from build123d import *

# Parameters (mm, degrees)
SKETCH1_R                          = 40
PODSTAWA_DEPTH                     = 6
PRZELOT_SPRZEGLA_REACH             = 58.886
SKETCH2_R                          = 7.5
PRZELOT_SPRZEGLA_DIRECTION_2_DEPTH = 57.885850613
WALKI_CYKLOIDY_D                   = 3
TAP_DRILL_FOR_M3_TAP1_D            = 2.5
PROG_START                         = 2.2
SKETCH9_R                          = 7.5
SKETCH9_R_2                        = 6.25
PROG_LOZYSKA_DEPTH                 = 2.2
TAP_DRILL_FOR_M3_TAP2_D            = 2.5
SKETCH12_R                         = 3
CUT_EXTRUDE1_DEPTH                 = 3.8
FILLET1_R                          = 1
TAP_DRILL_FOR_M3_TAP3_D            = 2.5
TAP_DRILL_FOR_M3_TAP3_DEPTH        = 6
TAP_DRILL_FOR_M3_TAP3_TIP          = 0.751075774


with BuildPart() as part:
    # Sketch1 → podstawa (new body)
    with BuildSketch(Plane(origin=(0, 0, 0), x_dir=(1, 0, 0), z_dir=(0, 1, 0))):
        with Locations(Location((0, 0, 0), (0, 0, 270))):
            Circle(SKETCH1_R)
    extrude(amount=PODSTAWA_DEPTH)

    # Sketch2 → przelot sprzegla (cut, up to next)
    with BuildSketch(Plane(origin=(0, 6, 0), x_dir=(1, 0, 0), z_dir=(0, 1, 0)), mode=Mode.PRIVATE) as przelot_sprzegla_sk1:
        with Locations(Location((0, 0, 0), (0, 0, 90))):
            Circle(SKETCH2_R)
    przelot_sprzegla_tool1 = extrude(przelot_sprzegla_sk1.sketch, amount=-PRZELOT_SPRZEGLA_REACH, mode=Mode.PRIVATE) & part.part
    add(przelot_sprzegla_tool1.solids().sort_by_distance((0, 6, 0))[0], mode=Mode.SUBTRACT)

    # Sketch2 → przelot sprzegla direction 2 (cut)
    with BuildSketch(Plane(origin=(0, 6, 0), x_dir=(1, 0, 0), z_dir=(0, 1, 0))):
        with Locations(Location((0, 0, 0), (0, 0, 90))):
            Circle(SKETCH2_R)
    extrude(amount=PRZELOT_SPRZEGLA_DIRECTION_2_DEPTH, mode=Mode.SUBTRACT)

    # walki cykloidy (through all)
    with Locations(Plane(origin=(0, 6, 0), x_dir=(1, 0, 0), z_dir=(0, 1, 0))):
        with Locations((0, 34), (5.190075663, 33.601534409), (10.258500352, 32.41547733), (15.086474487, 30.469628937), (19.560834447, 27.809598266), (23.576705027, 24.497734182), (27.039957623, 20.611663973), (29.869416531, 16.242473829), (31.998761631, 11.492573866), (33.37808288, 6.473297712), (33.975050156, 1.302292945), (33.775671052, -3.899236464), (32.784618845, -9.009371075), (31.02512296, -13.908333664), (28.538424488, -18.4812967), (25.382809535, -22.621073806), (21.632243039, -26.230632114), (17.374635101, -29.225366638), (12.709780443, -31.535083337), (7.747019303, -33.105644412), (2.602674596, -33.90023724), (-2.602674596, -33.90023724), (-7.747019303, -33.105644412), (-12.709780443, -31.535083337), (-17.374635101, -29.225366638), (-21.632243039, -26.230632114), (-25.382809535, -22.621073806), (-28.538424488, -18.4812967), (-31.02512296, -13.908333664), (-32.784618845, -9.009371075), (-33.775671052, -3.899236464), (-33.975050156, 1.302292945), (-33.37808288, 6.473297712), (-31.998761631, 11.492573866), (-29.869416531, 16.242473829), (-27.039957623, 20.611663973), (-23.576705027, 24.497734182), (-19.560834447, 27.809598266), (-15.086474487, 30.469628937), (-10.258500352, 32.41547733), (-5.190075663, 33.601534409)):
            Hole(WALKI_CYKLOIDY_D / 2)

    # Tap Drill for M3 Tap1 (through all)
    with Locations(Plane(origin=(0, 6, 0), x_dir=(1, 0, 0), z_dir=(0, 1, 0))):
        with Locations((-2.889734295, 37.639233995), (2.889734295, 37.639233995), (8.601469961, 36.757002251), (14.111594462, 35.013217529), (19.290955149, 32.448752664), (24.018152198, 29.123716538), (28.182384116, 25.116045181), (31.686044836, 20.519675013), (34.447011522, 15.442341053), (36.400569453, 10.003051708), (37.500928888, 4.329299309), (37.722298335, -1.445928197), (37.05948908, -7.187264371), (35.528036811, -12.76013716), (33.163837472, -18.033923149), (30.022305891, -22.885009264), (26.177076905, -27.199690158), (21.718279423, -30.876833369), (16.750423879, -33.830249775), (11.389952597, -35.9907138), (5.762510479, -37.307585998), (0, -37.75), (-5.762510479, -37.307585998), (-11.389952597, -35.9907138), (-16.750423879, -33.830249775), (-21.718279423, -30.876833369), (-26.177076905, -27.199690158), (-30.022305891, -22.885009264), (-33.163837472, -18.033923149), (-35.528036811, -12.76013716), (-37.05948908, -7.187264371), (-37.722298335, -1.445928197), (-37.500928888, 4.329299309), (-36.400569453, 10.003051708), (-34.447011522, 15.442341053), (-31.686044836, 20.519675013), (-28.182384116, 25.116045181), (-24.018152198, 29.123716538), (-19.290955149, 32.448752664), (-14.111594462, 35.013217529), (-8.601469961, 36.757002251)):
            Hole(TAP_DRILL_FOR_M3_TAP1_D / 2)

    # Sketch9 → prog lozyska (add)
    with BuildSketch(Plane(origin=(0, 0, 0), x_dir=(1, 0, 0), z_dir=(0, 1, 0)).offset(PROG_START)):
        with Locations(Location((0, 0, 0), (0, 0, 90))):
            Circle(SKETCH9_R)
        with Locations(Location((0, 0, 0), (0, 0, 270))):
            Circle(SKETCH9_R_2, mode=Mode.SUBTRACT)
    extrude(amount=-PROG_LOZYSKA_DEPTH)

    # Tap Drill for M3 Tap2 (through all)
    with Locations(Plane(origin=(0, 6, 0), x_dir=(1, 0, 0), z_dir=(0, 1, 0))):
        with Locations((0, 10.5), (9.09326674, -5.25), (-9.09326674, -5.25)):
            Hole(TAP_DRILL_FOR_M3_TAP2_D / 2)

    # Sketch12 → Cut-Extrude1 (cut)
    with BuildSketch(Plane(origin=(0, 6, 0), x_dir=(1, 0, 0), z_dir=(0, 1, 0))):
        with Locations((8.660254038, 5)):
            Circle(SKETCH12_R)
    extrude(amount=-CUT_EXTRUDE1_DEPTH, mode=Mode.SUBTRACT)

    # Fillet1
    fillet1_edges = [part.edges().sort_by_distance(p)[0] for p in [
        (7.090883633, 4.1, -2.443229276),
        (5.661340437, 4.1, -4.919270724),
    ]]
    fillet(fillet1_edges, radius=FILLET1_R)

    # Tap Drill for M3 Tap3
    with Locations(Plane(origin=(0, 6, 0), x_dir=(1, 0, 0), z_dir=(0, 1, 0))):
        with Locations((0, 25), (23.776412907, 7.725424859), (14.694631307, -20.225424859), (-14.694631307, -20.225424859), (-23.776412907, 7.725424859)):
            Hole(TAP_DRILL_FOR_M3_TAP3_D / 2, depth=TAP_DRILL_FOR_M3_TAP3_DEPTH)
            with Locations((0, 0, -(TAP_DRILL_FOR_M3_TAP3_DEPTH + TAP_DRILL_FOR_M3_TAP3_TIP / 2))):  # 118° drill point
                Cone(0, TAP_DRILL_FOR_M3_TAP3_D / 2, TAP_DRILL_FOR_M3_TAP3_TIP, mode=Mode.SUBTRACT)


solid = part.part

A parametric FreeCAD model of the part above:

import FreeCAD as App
import Part
import Sketcher
from FreeCAD import Vector


def edges_at(feature, points):
    """Names of the edges that pass closest to the given points."""
    edges = feature.Shape.Edges
    near = lambda p: min(range(len(edges)), key=lambda i: edges[i].distToShape(Part.Vertex(*p))[0])
    return sorted({f"Edge{near(p) + 1}" for p in points})

doc = App.newDocument("Part")
body = doc.addObject("PartDesign::Body", "Body")

# Sketch on XZ plane
sketch1 = body.newObject("Sketcher::SketchObject", "Sketch")
sketch1.AttachmentSupport = (doc.getObject("XZ_Plane"), [""])
sketch1.MapMode = "FlatFace"
sketch1.addGeometry(Part.Circle(Vector(0, 0, 0), Vector(0, 0, 1), 40), False)
sketch1.addConstraint(Sketcher.Constraint("Coincident", 0, 3, -1, 1))
sketch1.addConstraint(Sketcher.Constraint("Diameter", 0, 80.0))
pad1 = body.newObject("PartDesign::Pad", "Pad")
pad1.Profile = sketch1
pad1.Length = 6
pad1.Reversed = True

# Sketch on XZ plane
sketch2 = body.newObject("Sketcher::SketchObject", "Sketch001")
sketch2.AttachmentSupport = (doc.getObject("XZ_Plane"), [""])
sketch2.MapMode = "FlatFace"
sketch2.AttachmentOffset = App.Placement(Vector(0, 0, -6), App.Rotation())
sketch2.addGeometry(Part.Circle(Vector(0, 0, 0), Vector(0, 0, 1), 7.5), False)
sketch2.addConstraint(Sketcher.Constraint("Coincident", 0, 3, -1, 1))
sketch2.addConstraint(Sketcher.Constraint("Diameter", 0, 15.0))
pocket1 = body.newObject("PartDesign::Pocket", "Pocket")
pocket1.Profile = sketch2
pocket1.Type = "UpToFirst"
pocket1.Reversed = True

# Sketch on XZ plane
sketch3 = body.newObject("Sketcher::SketchObject", "Sketch002")
sketch3.AttachmentSupport = (doc.getObject("XZ_Plane"), [""])
sketch3.MapMode = "FlatFace"
sketch3.AttachmentOffset = App.Placement(Vector(0, 0, -6), App.Rotation())
sketch3.addGeometry(Part.Circle(Vector(0, 0, 0), Vector(0, 0, 1), 7.5), False)
sketch3.addConstraint(Sketcher.Constraint("Coincident", 0, 3, -1, 1))
sketch3.addConstraint(Sketcher.Constraint("Diameter", 0, 15.0))
pocket2 = body.newObject("PartDesign::Pocket", "Pocket001")
pocket2.Profile = sketch3
pocket2.Length = 57.885851

# Sketch on XZ plane
sketch4 = body.newObject("Sketcher::SketchObject", "Sketch003")
sketch4.AttachmentSupport = (doc.getObject("XZ_Plane"), [""])
sketch4.MapMode = "FlatFace"
sketch4.AttachmentOffset = App.Placement(Vector(0, 0, -6), App.Rotation())
sketch4.addGeometry(Part.Circle(Vector(0, -34, 0), Vector(0, 0, 1), 1.5), False)
sketch4.addGeometry(Part.Circle(Vector(5.190076, -33.601534, 0), Vector(0, 0, 1), 1.5), False)
sketch4.addGeometry(Part.Circle(Vector(10.2585, -32.415477, 0), Vector(0, 0, 1), 1.5), False)
sketch4.addGeometry(Part.Circle(Vector(15.086474, -30.469629, 0), Vector(0, 0, 1), 1.5), False)
sketch4.addGeometry(Part.Circle(Vector(19.560834, -27.809598, 0), Vector(0, 0, 1), 1.5), False)
sketch4.addGeometry(Part.Circle(Vector(23.576705, -24.497734, 0), Vector(0, 0, 1), 1.5), False)
sketch4.addGeometry(Part.Circle(Vector(27.039958, -20.611664, 0), Vector(0, 0, 1), 1.5), False)
sketch4.addGeometry(Part.Circle(Vector(29.869417, -16.242474, 0), Vector(0, 0, 1), 1.5), False)
sketch4.addGeometry(Part.Circle(Vector(31.998762, -11.492574, 0), Vector(0, 0, 1), 1.5), False)
sketch4.addGeometry(Part.Circle(Vector(33.378083, -6.473298, 0), Vector(0, 0, 1), 1.5), False)
sketch4.addGeometry(Part.Circle(Vector(33.97505, -1.302293, 0), Vector(0, 0, 1), 1.5), False)
sketch4.addGeometry(Part.Circle(Vector(33.775671, 3.899236, 0), Vector(0, 0, 1), 1.5), False)
sketch4.addGeometry(Part.Circle(Vector(32.784619, 9.009371, 0), Vector(0, 0, 1), 1.5), False)
sketch4.addGeometry(Part.Circle(Vector(31.025123, 13.908334, 0), Vector(0, 0, 1), 1.5), False)
sketch4.addGeometry(Part.Circle(Vector(28.538424, 18.481297, 0), Vector(0, 0, 1), 1.5), False)
sketch4.addGeometry(Part.Circle(Vector(25.38281, 22.621074, 0), Vector(0, 0, 1), 1.5), False)
sketch4.addGeometry(Part.Circle(Vector(21.632243, 26.230632, 0), Vector(0, 0, 1), 1.5), False)
sketch4.addGeometry(Part.Circle(Vector(17.374635, 29.225367, 0), Vector(0, 0, 1), 1.5), False)
sketch4.addGeometry(Part.Circle(Vector(12.70978, 31.535083, 0), Vector(0, 0, 1), 1.5), False)
sketch4.addGeometry(Part.Circle(Vector(7.747019, 33.105644, 0), Vector(0, 0, 1), 1.5), False)
sketch4.addGeometry(Part.Circle(Vector(2.602675, 33.900237, 0), Vector(0, 0, 1), 1.5), False)
sketch4.addGeometry(Part.Circle(Vector(-2.602675, 33.900237, 0), Vector(0, 0, 1), 1.5), False)
sketch4.addGeometry(Part.Circle(Vector(-7.747019, 33.105644, 0), Vector(0, 0, 1), 1.5), False)
sketch4.addGeometry(Part.Circle(Vector(-12.70978, 31.535083, 0), Vector(0, 0, 1), 1.5), False)
sketch4.addGeometry(Part.Circle(Vector(-17.374635, 29.225367, 0), Vector(0, 0, 1), 1.5), False)
sketch4.addGeometry(Part.Circle(Vector(-21.632243, 26.230632, 0), Vector(0, 0, 1), 1.5), False)
sketch4.addGeometry(Part.Circle(Vector(-25.38281, 22.621074, 0), Vector(0, 0, 1), 1.5), False)
sketch4.addGeometry(Part.Circle(Vector(-28.538424, 18.481297, 0), Vector(0, 0, 1), 1.5), False)
sketch4.addGeometry(Part.Circle(Vector(-31.025123, 13.908334, 0), Vector(0, 0, 1), 1.5), False)
sketch4.addGeometry(Part.Circle(Vector(-32.784619, 9.009371, 0), Vector(0, 0, 1), 1.5), False)
sketch4.addGeometry(Part.Circle(Vector(-33.775671, 3.899236, 0), Vector(0, 0, 1), 1.5), False)
sketch4.addGeometry(Part.Circle(Vector(-33.97505, -1.302293, 0), Vector(0, 0, 1), 1.5), False)
sketch4.addGeometry(Part.Circle(Vector(-33.378083, -6.473298, 0), Vector(0, 0, 1), 1.5), False)
sketch4.addGeometry(Part.Circle(Vector(-31.998762, -11.492574, 0), Vector(0, 0, 1), 1.5), False)
sketch4.addGeometry(Part.Circle(Vector(-29.869417, -16.242474, 0), Vector(0, 0, 1), 1.5), False)
sketch4.addGeometry(Part.Circle(Vector(-27.039958, -20.611664, 0), Vector(0, 0, 1), 1.5), False)
sketch4.addGeometry(Part.Circle(Vector(-23.576705, -24.497734, 0), Vector(0, 0, 1), 1.5), False)
sketch4.addGeometry(Part.Circle(Vector(-19.560834, -27.809598, 0), Vector(0, 0, 1), 1.5), False)
sketch4.addGeometry(Part.Circle(Vector(-15.086474, -30.469629, 0), Vector(0, 0, 1), 1.5), False)
sketch4.addGeometry(Part.Circle(Vector(-10.2585, -32.415477, 0), Vector(0, 0, 1), 1.5), False)
sketch4.addGeometry(Part.Circle(Vector(-5.190076, -33.601534, 0), Vector(0, 0, 1), 1.5), False)
sketch4.addConstraint(Sketcher.Constraint("Equal", 0, 1))
sketch4.addConstraint(Sketcher.Constraint("Equal", 1, 2))
sketch4.addConstraint(Sketcher.Constraint("Equal", 2, 3))
sketch4.addConstraint(Sketcher.Constraint("Equal", 3, 4))
sketch4.addConstraint(Sketcher.Constraint("Equal", 4, 5))
sketch4.addConstraint(Sketcher.Constraint("Equal", 5, 6))
sketch4.addConstraint(Sketcher.Constraint("Equal", 6, 7))
sketch4.addConstraint(Sketcher.Constraint("Equal", 7, 8))
sketch4.addConstraint(Sketcher.Constraint("Equal", 8, 9))
sketch4.addConstraint(Sketcher.Constraint("Equal", 9, 10))
sketch4.addConstraint(Sketcher.Constraint("Equal", 10, 11))
sketch4.addConstraint(Sketcher.Constraint("Equal", 11, 12))
sketch4.addConstraint(Sketcher.Constraint("Equal", 12, 13))
sketch4.addConstraint(Sketcher.Constraint("Equal", 13, 14))
sketch4.addConstraint(Sketcher.Constraint("Equal", 14, 15))
sketch4.addConstraint(Sketcher.Constraint("Equal", 15, 16))
sketch4.addConstraint(Sketcher.Constraint("Equal", 16, 17))
sketch4.addConstraint(Sketcher.Constraint("Equal", 17, 18))
sketch4.addConstraint(Sketcher.Constraint("Equal", 18, 19))
sketch4.addConstraint(Sketcher.Constraint("Equal", 19, 20))
sketch4.addConstraint(Sketcher.Constraint("Equal", 20, 21))
sketch4.addConstraint(Sketcher.Constraint("Equal", 21, 22))
sketch4.addConstraint(Sketcher.Constraint("Equal", 22, 23))
sketch4.addConstraint(Sketcher.Constraint("Equal", 23, 24))
sketch4.addConstraint(Sketcher.Constraint("Equal", 24, 25))
sketch4.addConstraint(Sketcher.Constraint("Equal", 25, 26))
sketch4.addConstraint(Sketcher.Constraint("Equal", 26, 27))
sketch4.addConstraint(Sketcher.Constraint("Equal", 27, 28))
sketch4.addConstraint(Sketcher.Constraint("Equal", 28, 29))
sketch4.addConstraint(Sketcher.Constraint("Equal", 29, 30))
sketch4.addConstraint(Sketcher.Constraint("Equal", 30, 31))
sketch4.addConstraint(Sketcher.Constraint("Equal", 31, 32))
sketch4.addConstraint(Sketcher.Constraint("Equal", 32, 33))
sketch4.addConstraint(Sketcher.Constraint("Equal", 33, 34))
sketch4.addConstraint(Sketcher.Constraint("Equal", 34, 35))
sketch4.addConstraint(Sketcher.Constraint("Equal", 35, 36))
sketch4.addConstraint(Sketcher.Constraint("Equal", 36, 37))
sketch4.addConstraint(Sketcher.Constraint("Equal", 37, 38))
sketch4.addConstraint(Sketcher.Constraint("Equal", 38, 39))
sketch4.addConstraint(Sketcher.Constraint("Equal", 39, 40))
sketch4.addConstraint(Sketcher.Constraint("Symmetric", 20, 3, 21, 3, -2))
sketch4.addConstraint(Sketcher.Constraint("Symmetric", 19, 3, 22, 3, -2))
sketch4.addConstraint(Sketcher.Constraint("Symmetric", 18, 3, 23, 3, -2))
sketch4.addConstraint(Sketcher.Constraint("Symmetric", 17, 3, 24, 3, -2))
sketch4.addConstraint(Sketcher.Constraint("Symmetric", 16, 3, 25, 3, -2))
sketch4.addConstraint(Sketcher.Constraint("Symmetric", 15, 3, 26, 3, -2))
sketch4.addConstraint(Sketcher.Constraint("Symmetric", 14, 3, 27, 3, -2))
sketch4.addConstraint(Sketcher.Constraint("Symmetric", 13, 3, 28, 3, -2))
sketch4.addConstraint(Sketcher.Constraint("Symmetric", 12, 3, 29, 3, -2))
sketch4.addConstraint(Sketcher.Constraint("Symmetric", 11, 3, 30, 3, -2))
sketch4.addConstraint(Sketcher.Constraint("Symmetric", 10, 3, 31, 3, -2))
sketch4.addConstraint(Sketcher.Constraint("Symmetric", 9, 3, 32, 3, -2))
sketch4.addConstraint(Sketcher.Constraint("Symmetric", 8, 3, 33, 3, -2))
sketch4.addConstraint(Sketcher.Constraint("Symmetric", 7, 3, 34, 3, -2))
sketch4.addConstraint(Sketcher.Constraint("Symmetric", 6, 3, 35, 3, -2))
sketch4.addConstraint(Sketcher.Constraint("Symmetric", 5, 3, 36, 3, -2))
sketch4.addConstraint(Sketcher.Constraint("Symmetric", 4, 3, 37, 3, -2))
sketch4.addConstraint(Sketcher.Constraint("Symmetric", 3, 3, 38, 3, -2))
sketch4.addConstraint(Sketcher.Constraint("Symmetric", 2, 3, 39, 3, -2))
sketch4.addConstraint(Sketcher.Constraint("Symmetric", 1, 3, 40, 3, -2))
sketch4.addConstraint(Sketcher.Constraint("PointOnObject", 0, 3, -2))
sketch4.addConstraint(Sketcher.Constraint("Diameter", 0, 3.0))
sketch4.addConstraint(Sketcher.Constraint("DistanceY", 0, 3, -1, 1, 34.0))
sketch4.addConstraint(Sketcher.Constraint("DistanceX", -1, 1, 2, 3, 10.2585))
sketch4.addConstraint(Sketcher.Constraint("DistanceY", 4, 3, -1, 1, 27.809598))
sketch4.addConstraint(Sketcher.Constraint("DistanceX", 1, 3, 3, 3, 9.896399))
sketch4.addConstraint(Sketcher.Constraint("DistanceY", 1, 3, 5, 3, 9.1038))
sketch4.addConstraint(Sketcher.Constraint("DistanceY", 7, 3, 8, 3, 4.7499))
sketch4.addConstraint(Sketcher.Constraint("DistanceY", 4, 3, 9, 3, 21.336301))
sketch4.addConstraint(Sketcher.Constraint("DistanceY", 6, 3, 11, 3, 24.5109))
sketch4.addConstraint(Sketcher.Constraint("DistanceX", 14, 3, 13, 3, 2.486698))
sketch4.addConstraint(Sketcher.Constraint("DistanceY", 13, 3, 16, 3, 12.322298))
sketch4.addConstraint(Sketcher.Constraint("DistanceX", 22, 3, 18, 3, 20.4568))
sketch4.addConstraint(Sketcher.Constraint("DistanceY", 3, 3, -1, 1, 30.469629))
sketch4.addConstraint(Sketcher.Constraint("DistanceX", -1, 1, 8, 3, 31.998762))
sketch4.addConstraint(Sketcher.Constraint("DistanceX", -1, 1, 10, 3, 33.97505))
sketch4.addConstraint(Sketcher.Constraint("DistanceX", -1, 1, 11, 3, 33.775671))
sketch4.addConstraint(Sketcher.Constraint("DistanceX", -1, 1, 12, 3, 32.784619))
sketch4.addConstraint(Sketcher.Constraint("DistanceY", -1, 1, 12, 3, 9.009371))
sketch4.addConstraint(Sketcher.Constraint("DistanceX", -1, 1, 15, 3, 25.38281))
sketch4.addConstraint(Sketcher.Constraint("DistanceX", -1, 1, 18, 3, 12.70978))
sketch4.addConstraint(Sketcher.Constraint("DistanceY", 2, 3, 3, 3, 1.945848))
sketch4.addConstraint(Sketcher.Constraint("DistanceX", 3, 3, 4, 3, 4.47436))
sketch4.addConstraint(Sketcher.Constraint("DistanceX", 4, 3, 5, 3, 4.015871))
sketch4.addConstraint(Sketcher.Constraint("DistanceY", 5, 3, 6, 3, 3.88607))
sketch4.addConstraint(Sketcher.Constraint("DistanceX", 1, 3, 6, 3, 21.849882))
sketch4.addConstraint(Sketcher.Constraint("DistanceX", 6, 3, 7, 3, 2.829459))
sketch4.addConstraint(Sketcher.Constraint("DistanceY", 6, 3, 7, 3, 4.36919))
sketch4.addConstraint(Sketcher.Constraint("DistanceX", 8, 3, 9, 3, 1.379321))
sketch4.addConstraint(Sketcher.Constraint("DistanceX", 4, 3, 9, 3, 13.817248))
sketch4.addConstraint(Sketcher.Constraint("DistanceY", 8, 3, 10, 3, 10.190281))
sketch4.addConstraint(Sketcher.Constraint("DistanceX", 13, 3, 11, 3, 2.750548))
sketch4.addConstraint(Sketcher.Constraint("DistanceY", 9, 3, 13, 3, 20.381631))
sketch4.addConstraint(Sketcher.Constraint("DistanceY", 11, 3, 14, 3, 14.58206))
sketch4.addConstraint(Sketcher.Constraint("DistanceY", 13, 3, 15, 3, 8.71274))
sketch4.addConstraint(Sketcher.Constraint("DistanceX", 16, 3, 14, 3, 6.906181))
sketch4.addConstraint(Sketcher.Constraint("DistanceX", 17, 3, 14, 3, 11.163789))
sketch4.addConstraint(Sketcher.Constraint("DistanceY", 14, 3, 17, 3, 10.74407))
sketch4.addConstraint(Sketcher.Constraint("DistanceY", 16, 3, 18, 3, 5.304451))
sketch4.addConstraint(Sketcher.Constraint("DistanceY", 18, 3, 19, 3, 1.570561))
sketch4.addConstraint(Sketcher.Constraint("DistanceX", 20, 3, 17, 3, 14.771961))
sketch4.addConstraint(Sketcher.Constraint("DistanceY", 17, 3, 20, 3, 4.674871))
sketch4.addConstraint(Sketcher.Constraint("DistanceY", 1, 3, -1, 1, 33.601534))
doc.recompute()
hole = body.newObject("PartDesign::Hole", "Hole")
hole.Profile = sketch4
hole.ThreadType = "None"
hole.Diameter = 3
hole.DepthType = "ThroughAll"
hole.Reversed = True

# Sketch on XZ plane
sketch5 = body.newObject("Sketcher::SketchObject", "Sketch004")
sketch5.AttachmentSupport = (doc.getObject("XZ_Plane"), [""])
sketch5.MapMode = "FlatFace"
sketch5.AttachmentOffset = App.Placement(Vector(0, 0, -6), App.Rotation())
sketch5.addGeometry(Part.Circle(Vector(-2.889734, -37.639234, 0), Vector(0, 0, 1), 1.25), False)
sketch5.addGeometry(Part.Circle(Vector(2.889734, -37.639234, 0), Vector(0, 0, 1), 1.25), False)
sketch5.addGeometry(Part.Circle(Vector(8.60147, -36.757002, 0), Vector(0, 0, 1), 1.25), False)
sketch5.addGeometry(Part.Circle(Vector(14.111594, -35.013218, 0), Vector(0, 0, 1), 1.25), False)
sketch5.addGeometry(Part.Circle(Vector(19.290955, -32.448753, 0), Vector(0, 0, 1), 1.25), False)
sketch5.addGeometry(Part.Circle(Vector(24.018152, -29.123717, 0), Vector(0, 0, 1), 1.25), False)
sketch5.addGeometry(Part.Circle(Vector(28.182384, -25.116045, 0), Vector(0, 0, 1), 1.25), False)
sketch5.addGeometry(Part.Circle(Vector(31.686045, -20.519675, 0), Vector(0, 0, 1), 1.25), False)
sketch5.addGeometry(Part.Circle(Vector(34.447012, -15.442341, 0), Vector(0, 0, 1), 1.25), False)
sketch5.addGeometry(Part.Circle(Vector(36.400569, -10.003052, 0), Vector(0, 0, 1), 1.25), False)
sketch5.addGeometry(Part.Circle(Vector(37.500929, -4.329299, 0), Vector(0, 0, 1), 1.25), False)
sketch5.addGeometry(Part.Circle(Vector(37.722298, 1.445928, 0), Vector(0, 0, 1), 1.25), False)
sketch5.addGeometry(Part.Circle(Vector(37.059489, 7.187264, 0), Vector(0, 0, 1), 1.25), False)
sketch5.addGeometry(Part.Circle(Vector(35.528037, 12.760137, 0), Vector(0, 0, 1), 1.25), False)
sketch5.addGeometry(Part.Circle(Vector(33.163837, 18.033923, 0), Vector(0, 0, 1), 1.25), False)
sketch5.addGeometry(Part.Circle(Vector(30.022306, 22.885009, 0), Vector(0, 0, 1), 1.25), False)
sketch5.addGeometry(Part.Circle(Vector(26.177077, 27.19969, 0), Vector(0, 0, 1), 1.25), False)
sketch5.addGeometry(Part.Circle(Vector(21.718279, 30.876833, 0), Vector(0, 0, 1), 1.25), False)
sketch5.addGeometry(Part.Circle(Vector(16.750424, 33.83025, 0), Vector(0, 0, 1), 1.25), False)
sketch5.addGeometry(Part.Circle(Vector(11.389953, 35.990714, 0), Vector(0, 0, 1), 1.25), False)
sketch5.addGeometry(Part.Circle(Vector(5.76251, 37.307586, 0), Vector(0, 0, 1), 1.25), False)
sketch5.addGeometry(Part.Circle(Vector(0, 37.75, 0), Vector(0, 0, 1), 1.25), False)
sketch5.addGeometry(Part.Circle(Vector(-5.76251, 37.307586, 0), Vector(0, 0, 1), 1.25), False)
sketch5.addGeometry(Part.Circle(Vector(-11.389953, 35.990714, 0), Vector(0, 0, 1), 1.25), False)
sketch5.addGeometry(Part.Circle(Vector(-16.750424, 33.83025, 0), Vector(0, 0, 1), 1.25), False)
sketch5.addGeometry(Part.Circle(Vector(-21.718279, 30.876833, 0), Vector(0, 0, 1), 1.25), False)
sketch5.addGeometry(Part.Circle(Vector(-26.177077, 27.19969, 0), Vector(0, 0, 1), 1.25), False)
sketch5.addGeometry(Part.Circle(Vector(-30.022306, 22.885009, 0), Vector(0, 0, 1), 1.25), False)
sketch5.addGeometry(Part.Circle(Vector(-33.163837, 18.033923, 0), Vector(0, 0, 1), 1.25), False)
sketch5.addGeometry(Part.Circle(Vector(-35.528037, 12.760137, 0), Vector(0, 0, 1), 1.25), False)
sketch5.addGeometry(Part.Circle(Vector(-37.059489, 7.187264, 0), Vector(0, 0, 1), 1.25), False)
sketch5.addGeometry(Part.Circle(Vector(-37.722298, 1.445928, 0), Vector(0, 0, 1), 1.25), False)
sketch5.addGeometry(Part.Circle(Vector(-37.500929, -4.329299, 0), Vector(0, 0, 1), 1.25), False)
sketch5.addGeometry(Part.Circle(Vector(-36.400569, -10.003052, 0), Vector(0, 0, 1), 1.25), False)
sketch5.addGeometry(Part.Circle(Vector(-34.447012, -15.442341, 0), Vector(0, 0, 1), 1.25), False)
sketch5.addGeometry(Part.Circle(Vector(-31.686045, -20.519675, 0), Vector(0, 0, 1), 1.25), False)
sketch5.addGeometry(Part.Circle(Vector(-28.182384, -25.116045, 0), Vector(0, 0, 1), 1.25), False)
sketch5.addGeometry(Part.Circle(Vector(-24.018152, -29.123717, 0), Vector(0, 0, 1), 1.25), False)
sketch5.addGeometry(Part.Circle(Vector(-19.290955, -32.448753, 0), Vector(0, 0, 1), 1.25), False)
sketch5.addGeometry(Part.Circle(Vector(-14.111594, -35.013218, 0), Vector(0, 0, 1), 1.25), False)
sketch5.addGeometry(Part.Circle(Vector(-8.60147, -36.757002, 0), Vector(0, 0, 1), 1.25), False)
sketch5.addConstraint(Sketcher.Constraint("Equal", 0, 1))
sketch5.addConstraint(Sketcher.Constraint("Equal", 1, 2))
sketch5.addConstraint(Sketcher.Constraint("Equal", 2, 3))
sketch5.addConstraint(Sketcher.Constraint("Equal", 3, 4))
sketch5.addConstraint(Sketcher.Constraint("Equal", 4, 5))
sketch5.addConstraint(Sketcher.Constraint("Equal", 5, 6))
sketch5.addConstraint(Sketcher.Constraint("Equal", 6, 7))
sketch5.addConstraint(Sketcher.Constraint("Equal", 7, 8))
sketch5.addConstraint(Sketcher.Constraint("Equal", 8, 9))
sketch5.addConstraint(Sketcher.Constraint("Equal", 9, 10))
sketch5.addConstraint(Sketcher.Constraint("Equal", 10, 11))
sketch5.addConstraint(Sketcher.Constraint("Equal", 11, 12))
sketch5.addConstraint(Sketcher.Constraint("Equal", 12, 13))
sketch5.addConstraint(Sketcher.Constraint("Equal", 13, 14))
sketch5.addConstraint(Sketcher.Constraint("Equal", 14, 15))
sketch5.addConstraint(Sketcher.Constraint("Equal", 15, 16))
sketch5.addConstraint(Sketcher.Constraint("Equal", 16, 17))
sketch5.addConstraint(Sketcher.Constraint("Equal", 17, 18))
sketch5.addConstraint(Sketcher.Constraint("Equal", 18, 19))
sketch5.addConstraint(Sketcher.Constraint("Equal", 19, 20))
sketch5.addConstraint(Sketcher.Constraint("Equal", 20, 21))
sketch5.addConstraint(Sketcher.Constraint("Equal", 21, 22))
sketch5.addConstraint(Sketcher.Constraint("Equal", 22, 23))
sketch5.addConstraint(Sketcher.Constraint("Equal", 23, 24))
sketch5.addConstraint(Sketcher.Constraint("Equal", 24, 25))
sketch5.addConstraint(Sketcher.Constraint("Equal", 25, 26))
sketch5.addConstraint(Sketcher.Constraint("Equal", 26, 27))
sketch5.addConstraint(Sketcher.Constraint("Equal", 27, 28))
sketch5.addConstraint(Sketcher.Constraint("Equal", 28, 29))
sketch5.addConstraint(Sketcher.Constraint("Equal", 29, 30))
sketch5.addConstraint(Sketcher.Constraint("Equal", 30, 31))
sketch5.addConstraint(Sketcher.Constraint("Equal", 31, 32))
sketch5.addConstraint(Sketcher.Constraint("Equal", 32, 33))
sketch5.addConstraint(Sketcher.Constraint("Equal", 33, 34))
sketch5.addConstraint(Sketcher.Constraint("Equal", 34, 35))
sketch5.addConstraint(Sketcher.Constraint("Equal", 35, 36))
sketch5.addConstraint(Sketcher.Constraint("Equal", 36, 37))
sketch5.addConstraint(Sketcher.Constraint("Equal", 37, 38))
sketch5.addConstraint(Sketcher.Constraint("Equal", 38, 39))
sketch5.addConstraint(Sketcher.Constraint("Equal", 39, 40))
sketch5.addConstraint(Sketcher.Constraint("Symmetric", 0, 3, 1, 3, -2))
sketch5.addConstraint(Sketcher.Constraint("Symmetric", 20, 3, 22, 3, -2))
sketch5.addConstraint(Sketcher.Constraint("Symmetric", 19, 3, 23, 3, -2))
sketch5.addConstraint(Sketcher.Constraint("Symmetric", 18, 3, 24, 3, -2))
sketch5.addConstraint(Sketcher.Constraint("Symmetric", 17, 3, 25, 3, -2))
sketch5.addConstraint(Sketcher.Constraint("Symmetric", 16, 3, 26, 3, -2))
sketch5.addConstraint(Sketcher.Constraint("Symmetric", 15, 3, 27, 3, -2))
sketch5.addConstraint(Sketcher.Constraint("Symmetric", 14, 3, 28, 3, -2))
sketch5.addConstraint(Sketcher.Constraint("Symmetric", 13, 3, 29, 3, -2))
sketch5.addConstraint(Sketcher.Constraint("Symmetric", 12, 3, 30, 3, -2))
sketch5.addConstraint(Sketcher.Constraint("Symmetric", 11, 3, 31, 3, -2))
sketch5.addConstraint(Sketcher.Constraint("Symmetric", 10, 3, 32, 3, -2))
sketch5.addConstraint(Sketcher.Constraint("Symmetric", 9, 3, 33, 3, -2))
sketch5.addConstraint(Sketcher.Constraint("Symmetric", 8, 3, 34, 3, -2))
sketch5.addConstraint(Sketcher.Constraint("Symmetric", 7, 3, 35, 3, -2))
sketch5.addConstraint(Sketcher.Constraint("Symmetric", 6, 3, 36, 3, -2))
sketch5.addConstraint(Sketcher.Constraint("Symmetric", 5, 3, 37, 3, -2))
sketch5.addConstraint(Sketcher.Constraint("Symmetric", 4, 3, 38, 3, -2))
sketch5.addConstraint(Sketcher.Constraint("Symmetric", 3, 3, 39, 3, -2))
sketch5.addConstraint(Sketcher.Constraint("Symmetric", 2, 3, 40, 3, -2))
sketch5.addConstraint(Sketcher.Constraint("PointOnObject", 21, 3, -2))
sketch5.addConstraint(Sketcher.Constraint("Diameter", 0, 2.5))
sketch5.addConstraint(Sketcher.Constraint("DistanceY", -1, 1, 21, 3, 37.75))
sketch5.addConstraint(Sketcher.Constraint("DistanceY", 10, 3, -1, 1, 4.329299))
sketch5.addConstraint(Sketcher.Constraint("DistanceX", -1, 1, 11, 3, 37.722298))
sketch5.addConstraint(Sketcher.Constraint("DistanceY", 3, 3, 5, 3, 5.889501))
sketch5.addConstraint(Sketcher.Constraint("DistanceY", 4, 3, 9, 3, 22.445701))
sketch5.addConstraint(Sketcher.Constraint("DistanceX", 14, 3, 13, 3, 2.364199))
sketch5.addConstraint(Sketcher.Constraint("DistanceX", -1, 1, 2, 3, 8.60147))
sketch5.addConstraint(Sketcher.Constraint("DistanceX", -1, 1, 8, 3, 34.447012))
sketch5.addConstraint(Sketcher.Constraint("DistanceY", 8, 3, -1, 1, 15.442341))
sketch5.addConstraint(Sketcher.Constraint("DistanceX", -1, 1, 9, 3, 36.400569))
sketch5.addConstraint(Sketcher.Constraint("DistanceY", 9, 3, -1, 1, 10.003052))
sketch5.addConstraint(Sketcher.Constraint("DistanceX", -1, 1, 10, 3, 37.500929))
sketch5.addConstraint(Sketcher.Constraint("DistanceY", -1, 1, 11, 3, 1.445928))
sketch5.addConstraint(Sketcher.Constraint("DistanceX", -1, 1, 12, 3, 37.059489))
sketch5.addConstraint(Sketcher.Constraint("DistanceY", -1, 1, 15, 3, 22.885009))
sketch5.addConstraint(Sketcher.Constraint("DistanceY", -1, 1, 16, 3, 27.19969))
sketch5.addConstraint(Sketcher.Constraint("DistanceX", -1, 1, 17, 3, 21.718279))
sketch5.addConstraint(Sketcher.Constraint("DistanceY", -1, 1, 18, 3, 33.83025))
sketch5.addConstraint(Sketcher.Constraint("DistanceX", -1, 1, 20, 3, 5.76251))
sketch5.addConstraint(Sketcher.Constraint("DistanceX", 0, 3, 1, 3, 5.779469))
sketch5.addConstraint(Sketcher.Constraint("DistanceY", 1, 3, 2, 3, 0.882232))
sketch5.addConstraint(Sketcher.Constraint("DistanceX", 1, 3, 3, 3, 11.22186))
sketch5.addConstraint(Sketcher.Constraint("DistanceX", 3, 3, 4, 3, 5.179361))
sketch5.addConstraint(Sketcher.Constraint("DistanceY", 2, 3, 4, 3, 4.30825))
sketch5.addConstraint(Sketcher.Constraint("DistanceX", 5, 3, 6, 3, 4.164232))
sketch5.addConstraint(Sketcher.Constraint("DistanceY", 5, 3, 6, 3, 4.007671))
sketch5.addConstraint(Sketcher.Constraint("DistanceX", 4, 3, 6, 3, 8.891429))
sketch5.addConstraint(Sketcher.Constraint("DistanceY", 1, 3, 6, 3, 12.523189))
sketch5.addConstraint(Sketcher.Constraint("DistanceX", 6, 3, 7, 3, 3.503661))
sketch5.addConstraint(Sketcher.Constraint("DistanceY", 6, 3, 7, 3, 4.59637))
sketch5.addConstraint(Sketcher.Constraint("DistanceY", 7, 3, 12, 3, 27.706939))
sketch5.addConstraint(Sketcher.Constraint("DistanceX", 13, 3, 11, 3, 2.194262))
sketch5.addConstraint(Sketcher.Constraint("DistanceY", 11, 3, 13, 3, 11.314209))
sketch5.addConstraint(Sketcher.Constraint("DistanceY", 12, 3, 14, 3, 10.846659))
sketch5.addConstraint(Sketcher.Constraint("DistanceX", 15, 3, 14, 3, 3.141532))
sketch5.addConstraint(Sketcher.Constraint("DistanceX", 16, 3, 15, 3, 3.845229))
sketch5.addConstraint(Sketcher.Constraint("DistanceY", 14, 3, 17, 3, 12.84291))
sketch5.addConstraint(Sketcher.Constraint("DistanceX", 19, 3, 18, 3, 5.360471))
sketch5.addConstraint(Sketcher.Constraint("DistanceY", 17, 3, 19, 3, 5.11388))
sketch5.addConstraint(Sketcher.Constraint("DistanceX", -1, 1, 18, 3, 16.750424))
sketch5.addConstraint(Sketcher.Constraint("DistanceY", -1, 1, 20, 3, 37.307586))
doc.recompute()
hole2 = body.newObject("PartDesign::Hole", "Hole001")
hole2.Profile = sketch5
hole2.ThreadType = "None"
hole2.Diameter = 2.5
hole2.DepthType = "ThroughAll"
hole2.Reversed = True

# Sketch on XZ plane
sketch6 = body.newObject("Sketcher::SketchObject", "Sketch005")
sketch6.AttachmentSupport = (doc.getObject("XZ_Plane"), [""])
sketch6.MapMode = "FlatFace"
sketch6.AttachmentOffset = App.Placement(Vector(0, 0, -2.2), App.Rotation())
sketch6.addGeometry(Part.Circle(Vector(0, 0, 0), Vector(0, 0, 1), 7.5), False)
sketch6.addGeometry(Part.Circle(Vector(0, 0, 0), Vector(0, 0, 1), 6.25), False)
sketch6.addConstraint(Sketcher.Constraint("Coincident", 0, 3, -1, 1))
sketch6.addConstraint(Sketcher.Constraint("Coincident", 1, 3, -1, 1))
sketch6.addConstraint(Sketcher.Constraint("Diameter", 0, 15.0))
sketch6.addConstraint(Sketcher.Constraint("Diameter", 1, 12.5))
pad2 = body.newObject("PartDesign::Pad", "Pad001")
pad2.Profile = sketch6
pad2.Length = 2.2

# Sketch on XZ plane
sketch7 = body.newObject("Sketcher::SketchObject", "Sketch006")
sketch7.AttachmentSupport = (doc.getObject("XZ_Plane"), [""])
sketch7.MapMode = "FlatFace"
sketch7.AttachmentOffset = App.Placement(Vector(0, 0, -6), App.Rotation())
sketch7.addGeometry(Part.Circle(Vector(0, -10.5, 0), Vector(0, 0, 1), 1.25), False)
sketch7.addGeometry(Part.Circle(Vector(9.093267, 5.25, 0), Vector(0, 0, 1), 1.25), False)
sketch7.addGeometry(Part.Circle(Vector(-9.093267, 5.25, 0), Vector(0, 0, 1), 1.25), False)
sketch7.addConstraint(Sketcher.Constraint("Equal", 0, 1))
sketch7.addConstraint(Sketcher.Constraint("Equal", 1, 2))
sketch7.addConstraint(Sketcher.Constraint("Symmetric", 1, 3, 2, 3, -2))
sketch7.addConstraint(Sketcher.Constraint("PointOnObject", 0, 3, -2))
sketch7.addConstraint(Sketcher.Constraint("Diameter", 0, 2.5))
sketch7.addConstraint(Sketcher.Constraint("DistanceY", 0, 3, -1, 1, 10.5))
sketch7.addConstraint(Sketcher.Constraint("DistanceY", -1, 1, 1, 3, 5.25))
sketch7.addConstraint(Sketcher.Constraint("DistanceX", -1, 1, 1, 3, 9.093267))
doc.recompute()
hole3 = body.newObject("PartDesign::Hole", "Hole002")
hole3.Profile = sketch7
hole3.ThreadType = "None"
hole3.Diameter = 2.5
hole3.DepthType = "ThroughAll"
hole3.Reversed = True

# Sketch on XZ plane
sketch8 = body.newObject("Sketcher::SketchObject", "Sketch007")
sketch8.AttachmentSupport = (doc.getObject("XZ_Plane"), [""])
sketch8.MapMode = "FlatFace"
sketch8.AttachmentOffset = App.Placement(Vector(0, 0, -6), App.Rotation())
sketch8.addGeometry(Part.Circle(Vector(8.660254, -5, 0), Vector(0, 0, 1), 3), False)
sketch8.addConstraint(Sketcher.Constraint("Diameter", 0, 6.0))
sketch8.addConstraint(Sketcher.Constraint("DistanceY", 0, 3, -1, 1, 5.0))
sketch8.addConstraint(Sketcher.Constraint("DistanceX", -1, 1, 0, 3, 8.660254))
pocket3 = body.newObject("PartDesign::Pocket", "Pocket002")
pocket3.Profile = sketch8
pocket3.Length = 3.8
pocket3.Reversed = True
doc.recompute()

fillet = body.newObject("PartDesign::Fillet", "Fillet")
fillet.Base = (pocket3, edges_at(pocket3, [(7.091, 4.1, -2.443), (5.661, 4.1, -4.919)]))
fillet.Radius = 1

# Sketch on XZ plane
sketch9 = body.newObject("Sketcher::SketchObject", "Sketch008")
sketch9.AttachmentSupport = (doc.getObject("XZ_Plane"), [""])
sketch9.MapMode = "FlatFace"
sketch9.AttachmentOffset = App.Placement(Vector(0, 0, -6), App.Rotation())
sketch9.addGeometry(Part.Circle(Vector(0, -25, 0), Vector(0, 0, 1), 1.25), False)
sketch9.addGeometry(Part.Circle(Vector(23.776413, -7.725425, 0), Vector(0, 0, 1), 1.25), False)
sketch9.addGeometry(Part.Circle(Vector(14.694631, 20.225425, 0), Vector(0, 0, 1), 1.25), False)
sketch9.addGeometry(Part.Circle(Vector(-14.694631, 20.225425, 0), Vector(0, 0, 1), 1.25), False)
sketch9.addGeometry(Part.Circle(Vector(-23.776413, -7.725425, 0), Vector(0, 0, 1), 1.25), False)
sketch9.addConstraint(Sketcher.Constraint("Equal", 0, 1))
sketch9.addConstraint(Sketcher.Constraint("Equal", 1, 2))
sketch9.addConstraint(Sketcher.Constraint("Equal", 2, 3))
sketch9.addConstraint(Sketcher.Constraint("Equal", 3, 4))
sketch9.addConstraint(Sketcher.Constraint("Symmetric", 2, 3, 3, 3, -2))
sketch9.addConstraint(Sketcher.Constraint("Symmetric", 1, 3, 4, 3, -2))
sketch9.addConstraint(Sketcher.Constraint("PointOnObject", 0, 3, -2))
sketch9.addConstraint(Sketcher.Constraint("Diameter", 0, 2.5))
sketch9.addConstraint(Sketcher.Constraint("DistanceY", 0, 3, -1, 1, 25.0))
sketch9.addConstraint(Sketcher.Constraint("DistanceX", -1, 1, 2, 3, 14.694631))
sketch9.addConstraint(Sketcher.Constraint("DistanceX", 2, 3, 1, 3, 9.081782))
sketch9.addConstraint(Sketcher.Constraint("DistanceY", 1, 3, 2, 3, 27.95085))
sketch9.addConstraint(Sketcher.Constraint("DistanceY", 1, 3, -1, 1, 7.725425))
doc.recompute()
hole4 = body.newObject("PartDesign::Hole", "Hole003")
hole4.Profile = sketch9
hole4.ThreadType = "None"
hole4.Diameter = 2.5
hole4.DepthType = "Dimension"
hole4.Depth = 6
hole4.DrillPoint = "Angled"
hole4.DrillPointAngle = 118
hole4.Reversed = True

doc.recompute()
